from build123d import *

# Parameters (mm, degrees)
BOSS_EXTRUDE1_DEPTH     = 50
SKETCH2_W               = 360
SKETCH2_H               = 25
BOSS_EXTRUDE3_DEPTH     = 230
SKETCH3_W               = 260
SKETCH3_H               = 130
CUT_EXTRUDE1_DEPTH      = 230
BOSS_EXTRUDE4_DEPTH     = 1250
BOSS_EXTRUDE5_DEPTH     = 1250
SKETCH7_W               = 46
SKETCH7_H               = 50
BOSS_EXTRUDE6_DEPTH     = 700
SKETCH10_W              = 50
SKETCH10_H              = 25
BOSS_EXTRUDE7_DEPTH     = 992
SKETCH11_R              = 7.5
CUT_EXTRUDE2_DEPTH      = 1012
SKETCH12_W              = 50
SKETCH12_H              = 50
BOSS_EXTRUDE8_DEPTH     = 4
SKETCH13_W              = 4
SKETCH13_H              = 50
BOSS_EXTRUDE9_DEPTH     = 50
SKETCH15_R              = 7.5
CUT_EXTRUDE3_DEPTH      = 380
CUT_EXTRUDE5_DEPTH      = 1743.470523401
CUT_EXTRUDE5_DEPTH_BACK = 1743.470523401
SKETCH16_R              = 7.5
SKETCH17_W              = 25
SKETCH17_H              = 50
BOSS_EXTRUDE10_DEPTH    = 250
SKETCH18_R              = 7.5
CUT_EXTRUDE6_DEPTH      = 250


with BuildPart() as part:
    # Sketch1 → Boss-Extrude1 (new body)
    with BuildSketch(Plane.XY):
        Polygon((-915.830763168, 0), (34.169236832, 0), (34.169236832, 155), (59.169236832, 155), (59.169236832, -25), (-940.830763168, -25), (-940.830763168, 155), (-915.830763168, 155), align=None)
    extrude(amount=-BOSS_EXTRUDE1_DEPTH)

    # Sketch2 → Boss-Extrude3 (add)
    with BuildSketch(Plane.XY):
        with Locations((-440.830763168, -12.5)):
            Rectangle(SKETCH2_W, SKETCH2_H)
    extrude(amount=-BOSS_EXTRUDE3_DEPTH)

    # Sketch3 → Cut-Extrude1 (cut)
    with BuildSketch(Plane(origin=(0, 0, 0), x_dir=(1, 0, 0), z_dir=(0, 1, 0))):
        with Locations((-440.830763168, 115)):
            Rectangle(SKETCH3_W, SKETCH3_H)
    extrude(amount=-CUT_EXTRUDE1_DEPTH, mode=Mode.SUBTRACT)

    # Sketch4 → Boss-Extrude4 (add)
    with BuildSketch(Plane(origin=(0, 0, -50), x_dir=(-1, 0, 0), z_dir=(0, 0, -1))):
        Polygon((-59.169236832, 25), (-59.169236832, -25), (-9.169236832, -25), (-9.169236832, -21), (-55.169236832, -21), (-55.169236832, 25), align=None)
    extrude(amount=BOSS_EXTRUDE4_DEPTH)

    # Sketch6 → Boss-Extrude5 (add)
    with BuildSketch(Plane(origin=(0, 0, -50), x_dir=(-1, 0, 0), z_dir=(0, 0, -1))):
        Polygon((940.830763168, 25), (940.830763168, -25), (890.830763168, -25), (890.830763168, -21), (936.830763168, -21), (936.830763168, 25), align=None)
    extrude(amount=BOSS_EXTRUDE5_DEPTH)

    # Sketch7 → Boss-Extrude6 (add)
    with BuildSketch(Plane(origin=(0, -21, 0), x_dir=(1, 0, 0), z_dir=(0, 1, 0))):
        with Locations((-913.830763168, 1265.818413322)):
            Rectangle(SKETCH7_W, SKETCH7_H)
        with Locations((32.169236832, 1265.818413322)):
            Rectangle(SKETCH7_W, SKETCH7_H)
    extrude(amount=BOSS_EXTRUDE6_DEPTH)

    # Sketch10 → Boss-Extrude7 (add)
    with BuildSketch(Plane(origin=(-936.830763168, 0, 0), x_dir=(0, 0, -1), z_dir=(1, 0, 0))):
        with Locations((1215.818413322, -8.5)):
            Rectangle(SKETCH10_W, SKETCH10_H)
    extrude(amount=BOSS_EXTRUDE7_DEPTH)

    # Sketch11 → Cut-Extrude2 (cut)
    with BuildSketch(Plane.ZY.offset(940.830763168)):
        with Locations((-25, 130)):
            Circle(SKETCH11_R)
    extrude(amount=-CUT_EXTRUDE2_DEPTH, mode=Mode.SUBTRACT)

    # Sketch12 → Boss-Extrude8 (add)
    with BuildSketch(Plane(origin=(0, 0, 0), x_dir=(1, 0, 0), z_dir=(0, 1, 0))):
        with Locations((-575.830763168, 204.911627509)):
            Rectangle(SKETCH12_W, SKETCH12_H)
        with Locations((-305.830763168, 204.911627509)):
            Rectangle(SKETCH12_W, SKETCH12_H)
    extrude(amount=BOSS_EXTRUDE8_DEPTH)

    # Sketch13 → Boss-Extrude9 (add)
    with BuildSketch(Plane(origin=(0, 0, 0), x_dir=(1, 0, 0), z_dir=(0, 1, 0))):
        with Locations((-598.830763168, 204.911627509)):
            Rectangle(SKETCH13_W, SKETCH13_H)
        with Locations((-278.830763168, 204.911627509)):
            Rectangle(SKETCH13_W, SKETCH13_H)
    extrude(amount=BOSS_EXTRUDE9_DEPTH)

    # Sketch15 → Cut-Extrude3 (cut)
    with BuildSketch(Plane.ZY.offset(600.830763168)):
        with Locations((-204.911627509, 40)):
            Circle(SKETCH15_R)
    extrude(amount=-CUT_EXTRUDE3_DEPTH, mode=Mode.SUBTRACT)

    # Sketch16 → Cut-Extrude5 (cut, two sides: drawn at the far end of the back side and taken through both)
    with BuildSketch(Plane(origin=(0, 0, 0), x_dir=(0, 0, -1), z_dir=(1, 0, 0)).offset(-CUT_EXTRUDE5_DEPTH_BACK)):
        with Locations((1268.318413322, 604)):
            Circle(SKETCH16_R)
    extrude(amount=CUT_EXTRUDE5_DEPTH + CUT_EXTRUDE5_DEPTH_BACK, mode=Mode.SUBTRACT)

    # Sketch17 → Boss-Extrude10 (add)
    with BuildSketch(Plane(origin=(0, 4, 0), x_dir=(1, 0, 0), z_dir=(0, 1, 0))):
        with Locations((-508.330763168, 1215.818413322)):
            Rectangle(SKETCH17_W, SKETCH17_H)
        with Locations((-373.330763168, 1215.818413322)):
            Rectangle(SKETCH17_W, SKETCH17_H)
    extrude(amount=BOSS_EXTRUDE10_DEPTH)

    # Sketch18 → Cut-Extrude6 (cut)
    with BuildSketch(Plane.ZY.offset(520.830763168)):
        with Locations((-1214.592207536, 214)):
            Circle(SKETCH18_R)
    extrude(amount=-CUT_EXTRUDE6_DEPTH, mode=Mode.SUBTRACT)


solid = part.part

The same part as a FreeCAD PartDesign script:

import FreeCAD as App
import Part
import Sketcher

V = App.Vector


def add_polygon(sketch, points):
    """Adds a closed chain of lines whose ends are joined by coincident constraints."""
    first, n = sketch.GeometryCount, len(points)
    for a, b in zip(points, points[1:] + points[:1]):
        sketch.addGeometry(Part.LineSegment(App.Vector(*a, 0), App.Vector(*b, 0)), False)
    for i in range(n):
        sketch.addConstraint(Sketcher.Constraint("Coincident", first + i, 2, first + (i + 1) % n, 1))

doc = App.newDocument("Part")
body = doc.addObject("PartDesign::Body", "Body")

sketch1 = body.newObject("Sketcher::SketchObject", "Sketch")
sketch1.AttachmentSupport = (doc.getObject("XY_Plane"), [""])
sketch1.MapMode = "FlatFace"
add_polygon(sketch1, [(34, 0), (-916, 0), (-916, 155), (-941, 155), (-941, -25), (59, -25), (59, 155), (34, 155)])
sketch1.addConstraint([
    Sketcher.Constraint("Horizontal", 0),
    Sketcher.Constraint("Vertical", 1),
    Sketcher.Constraint("Horizontal", 2),
    Sketcher.Constraint("Vertical", 3),
    Sketcher.Constraint("Horizontal", 4),
    Sketcher.Constraint("Vertical", 5),
    Sketcher.Constraint("Horizontal", 6),
    Sketcher.Constraint("Vertical", 7),
    Sketcher.Constraint("PointOnObject", 0, 2, -1),
    Sketcher.Constraint("Horizontal", 2, 2, 5, 2),
    Sketcher.Constraint("Equal", 2, 6),
    Sketcher.Constraint("DistanceX", 0, 2, 0, 1, 950.0),
    Sketcher.Constraint("DistanceX", 2, 2, 2, 1, 25.0),
    Sketcher.Constraint("DistanceY", 1, 1, 1, 2, 155.0),
    Sketcher.Constraint("DistanceY", 3, 2, 3, 1, 180.0),
    Sketcher.Constraint("DistanceX", 0, 2, -1, 1, 915.830763),
])
pad1 = body.newObject("PartDesign::Pad", "Pad")
pad1.Profile = sketch1
pad1.Length = 50
pad1.Reversed = True

sketch2 = body.newObject("Sketcher::SketchObject", "Sketch001")
sketch2.AttachmentSupport = (doc.getObject("XY_Plane"), [""])
sketch2.MapMode = "FlatFace"
add_polygon(sketch2, [(-621, 0), (-621, -25), (-261, -25), (-261, 0)])
sketch2.addConstraint([
    Sketcher.Constraint("Vertical", 0),
    Sketcher.Constraint("Horizontal", 1),
    Sketcher.Constraint("Vertical", 2),
    Sketcher.Constraint("Horizontal", 3),
    Sketcher.Constraint("PointOnObject", 2, 2, -1),
    Sketcher.Constraint("DistanceX", 1, 1, 1, 2, 360.0),
    Sketcher.Constraint("DistanceY", 0, 2, 0, 1, 25.0),
    Sketcher.Constraint("DistanceX", 0, 2, -1, 1, 620.830763),
])
pad2 = body.newObject("PartDesign::Pad", "Pad001")
pad2.Profile = sketch2
pad2.Length = 230
pad2.Reversed = True

sketch3 = body.newObject("Sketcher::SketchObject", "Sketch002")
sketch3.AttachmentSupport = (doc.getObject("XZ_Plane"), [""])
sketch3.MapMode = "FlatFace"
add_polygon(sketch3, [(-571, -180), (-571, -50), (-311, -50), (-311, -180)])
sketch3.addConstraint([
    Sketcher.Constraint("Vertical", 0),
    Sketcher.Constraint("Horizontal", 1),
    Sketcher.Constraint("Vertical", 2),
    Sketcher.Constraint("Horizontal", 3),
    Sketcher.Constraint("DistanceX", 1, 1, 1, 2, 260.0),
    Sketcher.Constraint("DistanceY", 0, 1, 0, 2, 130.0),
    Sketcher.Constraint("DistanceY", 0, 2, -1, 1, 50.0),
    Sketcher.Constraint("DistanceX", 0, 2, -1, 1, 570.830763),
])
pocket1 = body.newObject("PartDesign::Pocket", "Pocket")
pocket1.Profile = sketch3
pocket1.Length = 230
pocket1.Reversed = True

sketch4 = body.newObject("Sketcher::SketchObject", "Sketch003")
sketch4.AttachmentSupport = (doc.getObject("XY_Plane"), [""])
sketch4.MapMode = "FlatFace"
sketch4.AttachmentOffset = App.Placement(V(0, 0, -50), App.Rotation())
add_polygon(sketch4, [(59.2, 25), (59.2, -25), (9.2, -25), (9.2, -21), (55.2, -21), (55.2, 25)])
sketch4.addConstraint([
    Sketcher.Constraint("Vertical", 0),
    Sketcher.Constraint("Horizontal", 1),
    Sketcher.Constraint("Vertical", 2),
    Sketcher.Constraint("Horizontal", 3),
    Sketcher.Constraint("Vertical", 4),
    Sketcher.Constraint("Horizontal", 5),
    Sketcher.Constraint("Equal", 1, 0),
    Sketcher.Constraint("Equal", 5, 2),
    Sketcher.Constraint("DistanceX", 1, 2, 1, 1, 50.0),
    Sketcher.Constraint("DistanceX", 3, 1, 3, 2, 46.0),
    Sketcher.Constraint("DistanceY", 0, 2, -1, 1, 25.0),
    Sketcher.Constraint("DistanceX", -1, 1, 0, 2, 59.169237),
])
pad3 = body.newObject("PartDesign::Pad", "Pad002")
pad3.Profile = sketch4
pad3.Length = 1250
pad3.Reversed = True

sketch5 = body.newObject("Sketcher::SketchObject", "Sketch004")
sketch5.AttachmentSupport = (doc.getObject("XY_Plane"), [""])
sketch5.MapMode = "FlatFace"
sketch5.AttachmentOffset = App.Placement(V(0, 0, -50), App.Rotation())
add_polygon(sketch5, [(-940.8, -25), (-940.8, 25), (-936.8, 25), (-936.8, -21), (-890.8, -21), (-890.8, -25)])
sketch5.addConstraint([
    Sketcher.Constraint("Vertical", 0),
    Sketcher.Constraint("Horizontal", 1),
    Sketcher.Constraint("Vertical", 2),
    Sketcher.Constraint("Horizontal", 3),
    Sketcher.Constraint("Vertical", 4),
    Sketcher.Constraint("Horizontal", 5),
    Sketcher.Constraint("Equal", 5, 0),
    Sketcher.Constraint("Equal", 3, 2),
    Sketcher.Constraint("DistanceX", 1, 1, 1, 2, 4.0),
    Sketcher.Constraint("DistanceX", 3, 1, 3, 2, 46.0),
    Sketcher.Constraint("DistanceY", -1, 1, 0, 2, 25.0),
    Sketcher.Constraint("DistanceX", 0, 2, -1, 1, 940.830763),
])
pad4 = body.newObject("PartDesign::Pad", "Pad003")
pad4.Profile = sketch5
pad4.Length = 1250
pad4.Reversed = True

sketch6 = body.newObject("Sketcher::SketchObject", "Sketch005")
sketch6.AttachmentSupport = (doc.getObject("XZ_Plane"), [""])
sketch6.MapMode = "FlatFace"
sketch6.AttachmentOffset = App.Placement(V(0, 0, 21), App.Rotation())
add_polygon(sketch6, [(-937, -1291), (-937, -1241), (-891, -1241), (-891, -1291)])
add_polygon(sketch6, [(9, -1291), (9, -1241), (55, -1241), (55, -1291)])
sketch6.addConstraint([
    Sketcher.Constraint("Vertical", 0),
    Sketcher.Constraint("Horizontal", 1),
    Sketcher.Constraint("Vertical", 2),
    Sketcher.Constraint("Horizontal", 3),
    Sketcher.Constraint("Vertical", 4),
    Sketcher.Constraint("Horizontal", 5),
    Sketcher.Constraint("Vertical", 6),
    Sketcher.Constraint("Horizontal", 7),
    Sketcher.Constraint("Horizontal", 1, 2, 4, 2),
    Sketcher.Constraint("Horizontal", 3, 2, 6, 2),
    Sketcher.Constraint("Equal", 3, 5),
    Sketcher.Constraint("DistanceX", 1, 1, 1, 2, 46.0),
    Sketcher.Constraint("DistanceY", 0, 1, 0, 2, 50.0),
    Sketcher.Constraint("DistanceX", 1, 2, 4, 2, 900.0),
    Sketcher.Constraint("DistanceX", 0, 2, -1, 1, 936.830763),
    Sketcher.Constraint("DistanceY", 0, 2, -1, 1, 1240.818413),
])
pad5 = body.newObject("PartDesign::Pad", "Pad004")
pad5.Profile = sketch6
pad5.Length = 700
pad5.Reversed = True

sketch7 = body.newObject("Sketcher::SketchObject", "Sketch006")
sketch7.AttachmentSupport = (doc.getObject("YZ_Plane"), [""])
sketch7.MapMode = "FlatFace"
sketch7.AttachmentOffset = App.Placement(V(0, 0, -936.830763), App.Rotation())
add_polygon(sketch7, [(4, -1191), (-21, -1191), (-21, -1241), (4, -1241)])
sketch7.addConstraint([
    Sketcher.Constraint("Horizontal", 0),
    Sketcher.Constraint("Vertical", 1),
    Sketcher.Constraint("Horizontal", 2),
    Sketcher.Constraint("Vertical", 3),
    Sketcher.Constraint("DistanceX", 0, 2, 0, 1, 25.0),
    Sketcher.Constraint("DistanceY", 1, 2, 1, 1, 50.0),
    Sketcher.Constraint("DistanceX", 0, 2, -1, 1, 21.0),
    Sketcher.Constraint("DistanceY", 0, 2, -1, 1, 1190.818413),
])
pad6 = body.newObject("PartDesign::Pad", "Pad005")
pad6.Profile = sketch7
pad6.Length = 992

sketch8 = body.newObject("Sketcher::SketchObject", "Sketch007")
sketch8.AttachmentSupport = (doc.getObject("YZ_Plane"), [""])
sketch8.MapMode = "FlatFace"
sketch8.AttachmentOffset = App.Placement(V(0, 0, -940.830763), App.Rotation())
sketch8.addGeometry(Part.Circle(V(130, -25, 0), V(0, 0, 1), 8), False)
sketch8.addConstraint([
    Sketcher.Constraint("Diameter", 0, 15.0),
    Sketcher.Constraint("DistanceX", -1, 1, 0, 3, 130.0),
    Sketcher.Constraint("DistanceY", 0, 3, -1, 1, 25.0),
])
pocket2 = body.newObject("PartDesign::Pocket", "Pocket001")
pocket2.Profile = sketch8
pocket2.Length = 1012
pocket2.Reversed = True

sketch9 = body.newObject("Sketcher::SketchObject", "Sketch008")
sketch9.AttachmentSupport = (doc.getObject("XZ_Plane"), [""])
sketch9.MapMode = "FlatFace"
add_polygon(sketch9, [(-601, -230), (-601, -180), (-551, -180), (-551, -230)])
add_polygon(sketch9, [(-331, -230), (-331, -180), (-281, -180), (-281, -230)])
sketch9.addConstraint([
    Sketcher.Constraint("Vertical", 0),
    Sketcher.Constraint("Horizontal", 1),
    Sketcher.Constraint("Vertical", 2),
    Sketcher.Constraint("Horizontal", 3),
    Sketcher.Constraint("Vertical", 4),
    Sketcher.Constraint("Horizontal", 5),
    Sketcher.Constraint("Vertical", 6),
    Sketcher.Constraint("Horizontal", 7),
    Sketcher.Constraint("Horizontal", 1, 2, 4, 2),
    Sketcher.Constraint("Horizontal", 3, 2, 6, 2),
    Sketcher.Constraint("Equal", 3, 5),
    Sketcher.Constraint("Equal", 7, 0),
    Sketcher.Constraint("DistanceX", 1, 1, 1, 2, 50.0),
    Sketcher.Constraint("DistanceX", 1, 2, 4, 2, 220.0),
    Sketcher.Constraint("DistanceX", 0, 2, -1, 1, 600.830763),
    Sketcher.Constraint("DistanceY", 0, 2, -1, 1, 179.911628),
])
pad7 = body.newObject("PartDesign::Pad", "Pad006")
pad7.Profile = sketch9
pad7.Length = 4
pad7.Reversed = True

sketch10 = body.newObject("Sketcher::SketchObject", "Sketch009")
sketch10.AttachmentSupport = (doc.getObject("XZ_Plane"), [""])
sketch10.MapMode = "FlatFace"
add_polygon(sketch10, [(-600.8, -229.9), (-600.8, -179.9), (-596.8, -179.9), (-596.8, -229.9)])
add_polygon(sketch10, [(-280.8, -229.9), (-280.8, -179.9), (-276.8, -179.9), (-276.8, -229.9)])
sketch10.addConstraint([
    Sketcher.Constraint("Vertical", 0),
    Sketcher.Constraint("Horizontal", 1),
    Sketcher.Constraint("Vertical", 2),
    Sketcher.Constraint("Horizontal", 3),
    Sketcher.Constraint("Vertical", 4),
    Sketcher.Constraint("Horizontal", 5),
    Sketcher.Constraint("Vertical", 6),
    Sketcher.Constraint("Horizontal", 7),
    Sketcher.Constraint("Horizontal", 1, 2, 4, 2),
    Sketcher.Constraint("Horizontal", 3, 2, 6, 2),
    Sketcher.Constraint("Equal", 3, 5),
    Sketcher.Constraint("DistanceX", 1, 1, 1, 2, 4.0),
    Sketcher.Constraint("DistanceY", 0, 1, 0, 2, 50.0),
    Sketcher.Constraint("DistanceX", 1, 2, 4, 2, 316.0),
    Sketcher.Constraint("DistanceX", 0, 2, -1, 1, 600.830763),
    Sketcher.Constraint("DistanceY", 0, 2, -1, 1, 179.911628),
])
pad8 = body.newObject("PartDesign::Pad", "Pad007")
pad8.Profile = sketch10
pad8.Length = 50
pad8.Reversed = True

sketch11 = body.newObject("Sketcher::SketchObject", "Sketch010")
sketch11.AttachmentSupport = (doc.getObject("YZ_Plane"), [""])
sketch11.MapMode = "FlatFace"
sketch11.AttachmentOffset = App.Placement(V(0, 0, -600.830763), App.Rotation())
sketch11.addGeometry(Part.Circle(V(40, -205, 0), V(0, 0, 1), 8), False)
sketch11.addConstraint([
    Sketcher.Constraint("Diameter", 0, 15.0),
    Sketcher.Constraint("DistanceX", -1, 1, 0, 3, 40.0),
    Sketcher.Constraint("DistanceY", 0, 3, -1, 1, 204.911628),
])
pocket3 = body.newObject("PartDesign::Pocket", "Pocket002")
pocket3.Profile = sketch11
pocket3.Length = 380
pocket3.Reversed = True

sketch12 = body.newObject("Sketcher::SketchObject", "Sketch011")
sketch12.AttachmentSupport = (doc.getObject("YZ_Plane"), [""])
sketch12.MapMode = "FlatFace"
sketch12.addGeometry(Part.Circle(V(604, -1268, 0), V(0, 0, 1), 8), False)
sketch12.addConstraint([
    Sketcher.Constraint("Diameter", 0, 15.0),
    Sketcher.Constraint("DistanceX", -1, 1, 0, 3, 604.0),
    Sketcher.Constraint("DistanceY", 0, 3, -1, 1, 1268.318413),
])
pocket4 = body.newObject("PartDesign::Pocket", "Pocket003")
pocket4.Profile = sketch12
pocket4.Type = "ThroughAll"
pocket4.Midplane = True

sketch13 = body.newObject("Sketcher::SketchObject", "Sketch012")
sketch13.AttachmentSupport = (doc.getObject("XZ_Plane"), [""])
sketch13.MapMode = "FlatFace"
sketch13.AttachmentOffset = App.Placement(V(0, 0, -4), App.Rotation())
add_polygon(sketch13, [(-521, -1241), (-521, -1191), (-496, -1191), (-496, -1241)])
add_polygon(sketch13, [(-386, -1241), (-386, -1191), (-361, -1191), (-361, -1241)])
sketch13.addConstraint([
    Sketcher.Constraint("Vertical", 0),
    Sketcher.Constraint("Horizontal", 1),
    Sketcher.Constraint("Vertical", 2),
    Sketcher.Constraint("Horizontal", 3),
    Sketcher.Constraint("Vertical", 4),
    Sketcher.Constraint("Horizontal", 5),
    Sketcher.Constraint("Vertical", 6),
    Sketcher.Constraint("Horizontal", 7),
    Sketcher.Constraint("Horizontal", 1, 2, 4, 2),
    Sketcher.Constraint("Horizontal", 3, 2, 6, 2),
    Sketcher.Constraint("Equal", 3, 5),
    Sketcher.Constraint("DistanceX", 1, 1, 1, 2, 25.0),
    Sketcher.Constraint("DistanceY", 0, 1, 0, 2, 50.0),
    Sketcher.Constraint("DistanceX", 1, 2, 4, 2, 110.0),
    Sketcher.Constraint("DistanceX", 0, 2, -1, 1, 520.830763),
    Sketcher.Constraint("DistanceY", 0, 2, -1, 1, 1190.818413),
])
pad9 = body.newObject("PartDesign::Pad", "Pad008")
pad9.Profile = sketch13
pad9.Length = 250
pad9.Reversed = True

sketch14 = body.newObject("Sketcher::SketchObject", "Sketch013")
sketch14.AttachmentSupport = (doc.getObject("YZ_Plane"), [""])
sketch14.MapMode = "FlatFace"
sketch14.AttachmentOffset = App.Placement(V(0, 0, -520.830763), App.Rotation())
sketch14.addGeometry(Part.Circle(V(214, -1215, 0), V(0, 0, 1), 8), False)
sketch14.addConstraint([
    Sketcher.Constraint("Diameter", 0, 15.0),
    Sketcher.Constraint("DistanceX", -1, 1, 0, 3, 214.0),
    Sketcher.Constraint("DistanceY", 0, 3, -1, 1, 1214.592208),
])
pocket5 = body.newObject("PartDesign::Pocket", "Pocket004")
pocket5.Profile = sketch14
pocket5.Length = 250
pocket5.Reversed = True

doc.recompute()
